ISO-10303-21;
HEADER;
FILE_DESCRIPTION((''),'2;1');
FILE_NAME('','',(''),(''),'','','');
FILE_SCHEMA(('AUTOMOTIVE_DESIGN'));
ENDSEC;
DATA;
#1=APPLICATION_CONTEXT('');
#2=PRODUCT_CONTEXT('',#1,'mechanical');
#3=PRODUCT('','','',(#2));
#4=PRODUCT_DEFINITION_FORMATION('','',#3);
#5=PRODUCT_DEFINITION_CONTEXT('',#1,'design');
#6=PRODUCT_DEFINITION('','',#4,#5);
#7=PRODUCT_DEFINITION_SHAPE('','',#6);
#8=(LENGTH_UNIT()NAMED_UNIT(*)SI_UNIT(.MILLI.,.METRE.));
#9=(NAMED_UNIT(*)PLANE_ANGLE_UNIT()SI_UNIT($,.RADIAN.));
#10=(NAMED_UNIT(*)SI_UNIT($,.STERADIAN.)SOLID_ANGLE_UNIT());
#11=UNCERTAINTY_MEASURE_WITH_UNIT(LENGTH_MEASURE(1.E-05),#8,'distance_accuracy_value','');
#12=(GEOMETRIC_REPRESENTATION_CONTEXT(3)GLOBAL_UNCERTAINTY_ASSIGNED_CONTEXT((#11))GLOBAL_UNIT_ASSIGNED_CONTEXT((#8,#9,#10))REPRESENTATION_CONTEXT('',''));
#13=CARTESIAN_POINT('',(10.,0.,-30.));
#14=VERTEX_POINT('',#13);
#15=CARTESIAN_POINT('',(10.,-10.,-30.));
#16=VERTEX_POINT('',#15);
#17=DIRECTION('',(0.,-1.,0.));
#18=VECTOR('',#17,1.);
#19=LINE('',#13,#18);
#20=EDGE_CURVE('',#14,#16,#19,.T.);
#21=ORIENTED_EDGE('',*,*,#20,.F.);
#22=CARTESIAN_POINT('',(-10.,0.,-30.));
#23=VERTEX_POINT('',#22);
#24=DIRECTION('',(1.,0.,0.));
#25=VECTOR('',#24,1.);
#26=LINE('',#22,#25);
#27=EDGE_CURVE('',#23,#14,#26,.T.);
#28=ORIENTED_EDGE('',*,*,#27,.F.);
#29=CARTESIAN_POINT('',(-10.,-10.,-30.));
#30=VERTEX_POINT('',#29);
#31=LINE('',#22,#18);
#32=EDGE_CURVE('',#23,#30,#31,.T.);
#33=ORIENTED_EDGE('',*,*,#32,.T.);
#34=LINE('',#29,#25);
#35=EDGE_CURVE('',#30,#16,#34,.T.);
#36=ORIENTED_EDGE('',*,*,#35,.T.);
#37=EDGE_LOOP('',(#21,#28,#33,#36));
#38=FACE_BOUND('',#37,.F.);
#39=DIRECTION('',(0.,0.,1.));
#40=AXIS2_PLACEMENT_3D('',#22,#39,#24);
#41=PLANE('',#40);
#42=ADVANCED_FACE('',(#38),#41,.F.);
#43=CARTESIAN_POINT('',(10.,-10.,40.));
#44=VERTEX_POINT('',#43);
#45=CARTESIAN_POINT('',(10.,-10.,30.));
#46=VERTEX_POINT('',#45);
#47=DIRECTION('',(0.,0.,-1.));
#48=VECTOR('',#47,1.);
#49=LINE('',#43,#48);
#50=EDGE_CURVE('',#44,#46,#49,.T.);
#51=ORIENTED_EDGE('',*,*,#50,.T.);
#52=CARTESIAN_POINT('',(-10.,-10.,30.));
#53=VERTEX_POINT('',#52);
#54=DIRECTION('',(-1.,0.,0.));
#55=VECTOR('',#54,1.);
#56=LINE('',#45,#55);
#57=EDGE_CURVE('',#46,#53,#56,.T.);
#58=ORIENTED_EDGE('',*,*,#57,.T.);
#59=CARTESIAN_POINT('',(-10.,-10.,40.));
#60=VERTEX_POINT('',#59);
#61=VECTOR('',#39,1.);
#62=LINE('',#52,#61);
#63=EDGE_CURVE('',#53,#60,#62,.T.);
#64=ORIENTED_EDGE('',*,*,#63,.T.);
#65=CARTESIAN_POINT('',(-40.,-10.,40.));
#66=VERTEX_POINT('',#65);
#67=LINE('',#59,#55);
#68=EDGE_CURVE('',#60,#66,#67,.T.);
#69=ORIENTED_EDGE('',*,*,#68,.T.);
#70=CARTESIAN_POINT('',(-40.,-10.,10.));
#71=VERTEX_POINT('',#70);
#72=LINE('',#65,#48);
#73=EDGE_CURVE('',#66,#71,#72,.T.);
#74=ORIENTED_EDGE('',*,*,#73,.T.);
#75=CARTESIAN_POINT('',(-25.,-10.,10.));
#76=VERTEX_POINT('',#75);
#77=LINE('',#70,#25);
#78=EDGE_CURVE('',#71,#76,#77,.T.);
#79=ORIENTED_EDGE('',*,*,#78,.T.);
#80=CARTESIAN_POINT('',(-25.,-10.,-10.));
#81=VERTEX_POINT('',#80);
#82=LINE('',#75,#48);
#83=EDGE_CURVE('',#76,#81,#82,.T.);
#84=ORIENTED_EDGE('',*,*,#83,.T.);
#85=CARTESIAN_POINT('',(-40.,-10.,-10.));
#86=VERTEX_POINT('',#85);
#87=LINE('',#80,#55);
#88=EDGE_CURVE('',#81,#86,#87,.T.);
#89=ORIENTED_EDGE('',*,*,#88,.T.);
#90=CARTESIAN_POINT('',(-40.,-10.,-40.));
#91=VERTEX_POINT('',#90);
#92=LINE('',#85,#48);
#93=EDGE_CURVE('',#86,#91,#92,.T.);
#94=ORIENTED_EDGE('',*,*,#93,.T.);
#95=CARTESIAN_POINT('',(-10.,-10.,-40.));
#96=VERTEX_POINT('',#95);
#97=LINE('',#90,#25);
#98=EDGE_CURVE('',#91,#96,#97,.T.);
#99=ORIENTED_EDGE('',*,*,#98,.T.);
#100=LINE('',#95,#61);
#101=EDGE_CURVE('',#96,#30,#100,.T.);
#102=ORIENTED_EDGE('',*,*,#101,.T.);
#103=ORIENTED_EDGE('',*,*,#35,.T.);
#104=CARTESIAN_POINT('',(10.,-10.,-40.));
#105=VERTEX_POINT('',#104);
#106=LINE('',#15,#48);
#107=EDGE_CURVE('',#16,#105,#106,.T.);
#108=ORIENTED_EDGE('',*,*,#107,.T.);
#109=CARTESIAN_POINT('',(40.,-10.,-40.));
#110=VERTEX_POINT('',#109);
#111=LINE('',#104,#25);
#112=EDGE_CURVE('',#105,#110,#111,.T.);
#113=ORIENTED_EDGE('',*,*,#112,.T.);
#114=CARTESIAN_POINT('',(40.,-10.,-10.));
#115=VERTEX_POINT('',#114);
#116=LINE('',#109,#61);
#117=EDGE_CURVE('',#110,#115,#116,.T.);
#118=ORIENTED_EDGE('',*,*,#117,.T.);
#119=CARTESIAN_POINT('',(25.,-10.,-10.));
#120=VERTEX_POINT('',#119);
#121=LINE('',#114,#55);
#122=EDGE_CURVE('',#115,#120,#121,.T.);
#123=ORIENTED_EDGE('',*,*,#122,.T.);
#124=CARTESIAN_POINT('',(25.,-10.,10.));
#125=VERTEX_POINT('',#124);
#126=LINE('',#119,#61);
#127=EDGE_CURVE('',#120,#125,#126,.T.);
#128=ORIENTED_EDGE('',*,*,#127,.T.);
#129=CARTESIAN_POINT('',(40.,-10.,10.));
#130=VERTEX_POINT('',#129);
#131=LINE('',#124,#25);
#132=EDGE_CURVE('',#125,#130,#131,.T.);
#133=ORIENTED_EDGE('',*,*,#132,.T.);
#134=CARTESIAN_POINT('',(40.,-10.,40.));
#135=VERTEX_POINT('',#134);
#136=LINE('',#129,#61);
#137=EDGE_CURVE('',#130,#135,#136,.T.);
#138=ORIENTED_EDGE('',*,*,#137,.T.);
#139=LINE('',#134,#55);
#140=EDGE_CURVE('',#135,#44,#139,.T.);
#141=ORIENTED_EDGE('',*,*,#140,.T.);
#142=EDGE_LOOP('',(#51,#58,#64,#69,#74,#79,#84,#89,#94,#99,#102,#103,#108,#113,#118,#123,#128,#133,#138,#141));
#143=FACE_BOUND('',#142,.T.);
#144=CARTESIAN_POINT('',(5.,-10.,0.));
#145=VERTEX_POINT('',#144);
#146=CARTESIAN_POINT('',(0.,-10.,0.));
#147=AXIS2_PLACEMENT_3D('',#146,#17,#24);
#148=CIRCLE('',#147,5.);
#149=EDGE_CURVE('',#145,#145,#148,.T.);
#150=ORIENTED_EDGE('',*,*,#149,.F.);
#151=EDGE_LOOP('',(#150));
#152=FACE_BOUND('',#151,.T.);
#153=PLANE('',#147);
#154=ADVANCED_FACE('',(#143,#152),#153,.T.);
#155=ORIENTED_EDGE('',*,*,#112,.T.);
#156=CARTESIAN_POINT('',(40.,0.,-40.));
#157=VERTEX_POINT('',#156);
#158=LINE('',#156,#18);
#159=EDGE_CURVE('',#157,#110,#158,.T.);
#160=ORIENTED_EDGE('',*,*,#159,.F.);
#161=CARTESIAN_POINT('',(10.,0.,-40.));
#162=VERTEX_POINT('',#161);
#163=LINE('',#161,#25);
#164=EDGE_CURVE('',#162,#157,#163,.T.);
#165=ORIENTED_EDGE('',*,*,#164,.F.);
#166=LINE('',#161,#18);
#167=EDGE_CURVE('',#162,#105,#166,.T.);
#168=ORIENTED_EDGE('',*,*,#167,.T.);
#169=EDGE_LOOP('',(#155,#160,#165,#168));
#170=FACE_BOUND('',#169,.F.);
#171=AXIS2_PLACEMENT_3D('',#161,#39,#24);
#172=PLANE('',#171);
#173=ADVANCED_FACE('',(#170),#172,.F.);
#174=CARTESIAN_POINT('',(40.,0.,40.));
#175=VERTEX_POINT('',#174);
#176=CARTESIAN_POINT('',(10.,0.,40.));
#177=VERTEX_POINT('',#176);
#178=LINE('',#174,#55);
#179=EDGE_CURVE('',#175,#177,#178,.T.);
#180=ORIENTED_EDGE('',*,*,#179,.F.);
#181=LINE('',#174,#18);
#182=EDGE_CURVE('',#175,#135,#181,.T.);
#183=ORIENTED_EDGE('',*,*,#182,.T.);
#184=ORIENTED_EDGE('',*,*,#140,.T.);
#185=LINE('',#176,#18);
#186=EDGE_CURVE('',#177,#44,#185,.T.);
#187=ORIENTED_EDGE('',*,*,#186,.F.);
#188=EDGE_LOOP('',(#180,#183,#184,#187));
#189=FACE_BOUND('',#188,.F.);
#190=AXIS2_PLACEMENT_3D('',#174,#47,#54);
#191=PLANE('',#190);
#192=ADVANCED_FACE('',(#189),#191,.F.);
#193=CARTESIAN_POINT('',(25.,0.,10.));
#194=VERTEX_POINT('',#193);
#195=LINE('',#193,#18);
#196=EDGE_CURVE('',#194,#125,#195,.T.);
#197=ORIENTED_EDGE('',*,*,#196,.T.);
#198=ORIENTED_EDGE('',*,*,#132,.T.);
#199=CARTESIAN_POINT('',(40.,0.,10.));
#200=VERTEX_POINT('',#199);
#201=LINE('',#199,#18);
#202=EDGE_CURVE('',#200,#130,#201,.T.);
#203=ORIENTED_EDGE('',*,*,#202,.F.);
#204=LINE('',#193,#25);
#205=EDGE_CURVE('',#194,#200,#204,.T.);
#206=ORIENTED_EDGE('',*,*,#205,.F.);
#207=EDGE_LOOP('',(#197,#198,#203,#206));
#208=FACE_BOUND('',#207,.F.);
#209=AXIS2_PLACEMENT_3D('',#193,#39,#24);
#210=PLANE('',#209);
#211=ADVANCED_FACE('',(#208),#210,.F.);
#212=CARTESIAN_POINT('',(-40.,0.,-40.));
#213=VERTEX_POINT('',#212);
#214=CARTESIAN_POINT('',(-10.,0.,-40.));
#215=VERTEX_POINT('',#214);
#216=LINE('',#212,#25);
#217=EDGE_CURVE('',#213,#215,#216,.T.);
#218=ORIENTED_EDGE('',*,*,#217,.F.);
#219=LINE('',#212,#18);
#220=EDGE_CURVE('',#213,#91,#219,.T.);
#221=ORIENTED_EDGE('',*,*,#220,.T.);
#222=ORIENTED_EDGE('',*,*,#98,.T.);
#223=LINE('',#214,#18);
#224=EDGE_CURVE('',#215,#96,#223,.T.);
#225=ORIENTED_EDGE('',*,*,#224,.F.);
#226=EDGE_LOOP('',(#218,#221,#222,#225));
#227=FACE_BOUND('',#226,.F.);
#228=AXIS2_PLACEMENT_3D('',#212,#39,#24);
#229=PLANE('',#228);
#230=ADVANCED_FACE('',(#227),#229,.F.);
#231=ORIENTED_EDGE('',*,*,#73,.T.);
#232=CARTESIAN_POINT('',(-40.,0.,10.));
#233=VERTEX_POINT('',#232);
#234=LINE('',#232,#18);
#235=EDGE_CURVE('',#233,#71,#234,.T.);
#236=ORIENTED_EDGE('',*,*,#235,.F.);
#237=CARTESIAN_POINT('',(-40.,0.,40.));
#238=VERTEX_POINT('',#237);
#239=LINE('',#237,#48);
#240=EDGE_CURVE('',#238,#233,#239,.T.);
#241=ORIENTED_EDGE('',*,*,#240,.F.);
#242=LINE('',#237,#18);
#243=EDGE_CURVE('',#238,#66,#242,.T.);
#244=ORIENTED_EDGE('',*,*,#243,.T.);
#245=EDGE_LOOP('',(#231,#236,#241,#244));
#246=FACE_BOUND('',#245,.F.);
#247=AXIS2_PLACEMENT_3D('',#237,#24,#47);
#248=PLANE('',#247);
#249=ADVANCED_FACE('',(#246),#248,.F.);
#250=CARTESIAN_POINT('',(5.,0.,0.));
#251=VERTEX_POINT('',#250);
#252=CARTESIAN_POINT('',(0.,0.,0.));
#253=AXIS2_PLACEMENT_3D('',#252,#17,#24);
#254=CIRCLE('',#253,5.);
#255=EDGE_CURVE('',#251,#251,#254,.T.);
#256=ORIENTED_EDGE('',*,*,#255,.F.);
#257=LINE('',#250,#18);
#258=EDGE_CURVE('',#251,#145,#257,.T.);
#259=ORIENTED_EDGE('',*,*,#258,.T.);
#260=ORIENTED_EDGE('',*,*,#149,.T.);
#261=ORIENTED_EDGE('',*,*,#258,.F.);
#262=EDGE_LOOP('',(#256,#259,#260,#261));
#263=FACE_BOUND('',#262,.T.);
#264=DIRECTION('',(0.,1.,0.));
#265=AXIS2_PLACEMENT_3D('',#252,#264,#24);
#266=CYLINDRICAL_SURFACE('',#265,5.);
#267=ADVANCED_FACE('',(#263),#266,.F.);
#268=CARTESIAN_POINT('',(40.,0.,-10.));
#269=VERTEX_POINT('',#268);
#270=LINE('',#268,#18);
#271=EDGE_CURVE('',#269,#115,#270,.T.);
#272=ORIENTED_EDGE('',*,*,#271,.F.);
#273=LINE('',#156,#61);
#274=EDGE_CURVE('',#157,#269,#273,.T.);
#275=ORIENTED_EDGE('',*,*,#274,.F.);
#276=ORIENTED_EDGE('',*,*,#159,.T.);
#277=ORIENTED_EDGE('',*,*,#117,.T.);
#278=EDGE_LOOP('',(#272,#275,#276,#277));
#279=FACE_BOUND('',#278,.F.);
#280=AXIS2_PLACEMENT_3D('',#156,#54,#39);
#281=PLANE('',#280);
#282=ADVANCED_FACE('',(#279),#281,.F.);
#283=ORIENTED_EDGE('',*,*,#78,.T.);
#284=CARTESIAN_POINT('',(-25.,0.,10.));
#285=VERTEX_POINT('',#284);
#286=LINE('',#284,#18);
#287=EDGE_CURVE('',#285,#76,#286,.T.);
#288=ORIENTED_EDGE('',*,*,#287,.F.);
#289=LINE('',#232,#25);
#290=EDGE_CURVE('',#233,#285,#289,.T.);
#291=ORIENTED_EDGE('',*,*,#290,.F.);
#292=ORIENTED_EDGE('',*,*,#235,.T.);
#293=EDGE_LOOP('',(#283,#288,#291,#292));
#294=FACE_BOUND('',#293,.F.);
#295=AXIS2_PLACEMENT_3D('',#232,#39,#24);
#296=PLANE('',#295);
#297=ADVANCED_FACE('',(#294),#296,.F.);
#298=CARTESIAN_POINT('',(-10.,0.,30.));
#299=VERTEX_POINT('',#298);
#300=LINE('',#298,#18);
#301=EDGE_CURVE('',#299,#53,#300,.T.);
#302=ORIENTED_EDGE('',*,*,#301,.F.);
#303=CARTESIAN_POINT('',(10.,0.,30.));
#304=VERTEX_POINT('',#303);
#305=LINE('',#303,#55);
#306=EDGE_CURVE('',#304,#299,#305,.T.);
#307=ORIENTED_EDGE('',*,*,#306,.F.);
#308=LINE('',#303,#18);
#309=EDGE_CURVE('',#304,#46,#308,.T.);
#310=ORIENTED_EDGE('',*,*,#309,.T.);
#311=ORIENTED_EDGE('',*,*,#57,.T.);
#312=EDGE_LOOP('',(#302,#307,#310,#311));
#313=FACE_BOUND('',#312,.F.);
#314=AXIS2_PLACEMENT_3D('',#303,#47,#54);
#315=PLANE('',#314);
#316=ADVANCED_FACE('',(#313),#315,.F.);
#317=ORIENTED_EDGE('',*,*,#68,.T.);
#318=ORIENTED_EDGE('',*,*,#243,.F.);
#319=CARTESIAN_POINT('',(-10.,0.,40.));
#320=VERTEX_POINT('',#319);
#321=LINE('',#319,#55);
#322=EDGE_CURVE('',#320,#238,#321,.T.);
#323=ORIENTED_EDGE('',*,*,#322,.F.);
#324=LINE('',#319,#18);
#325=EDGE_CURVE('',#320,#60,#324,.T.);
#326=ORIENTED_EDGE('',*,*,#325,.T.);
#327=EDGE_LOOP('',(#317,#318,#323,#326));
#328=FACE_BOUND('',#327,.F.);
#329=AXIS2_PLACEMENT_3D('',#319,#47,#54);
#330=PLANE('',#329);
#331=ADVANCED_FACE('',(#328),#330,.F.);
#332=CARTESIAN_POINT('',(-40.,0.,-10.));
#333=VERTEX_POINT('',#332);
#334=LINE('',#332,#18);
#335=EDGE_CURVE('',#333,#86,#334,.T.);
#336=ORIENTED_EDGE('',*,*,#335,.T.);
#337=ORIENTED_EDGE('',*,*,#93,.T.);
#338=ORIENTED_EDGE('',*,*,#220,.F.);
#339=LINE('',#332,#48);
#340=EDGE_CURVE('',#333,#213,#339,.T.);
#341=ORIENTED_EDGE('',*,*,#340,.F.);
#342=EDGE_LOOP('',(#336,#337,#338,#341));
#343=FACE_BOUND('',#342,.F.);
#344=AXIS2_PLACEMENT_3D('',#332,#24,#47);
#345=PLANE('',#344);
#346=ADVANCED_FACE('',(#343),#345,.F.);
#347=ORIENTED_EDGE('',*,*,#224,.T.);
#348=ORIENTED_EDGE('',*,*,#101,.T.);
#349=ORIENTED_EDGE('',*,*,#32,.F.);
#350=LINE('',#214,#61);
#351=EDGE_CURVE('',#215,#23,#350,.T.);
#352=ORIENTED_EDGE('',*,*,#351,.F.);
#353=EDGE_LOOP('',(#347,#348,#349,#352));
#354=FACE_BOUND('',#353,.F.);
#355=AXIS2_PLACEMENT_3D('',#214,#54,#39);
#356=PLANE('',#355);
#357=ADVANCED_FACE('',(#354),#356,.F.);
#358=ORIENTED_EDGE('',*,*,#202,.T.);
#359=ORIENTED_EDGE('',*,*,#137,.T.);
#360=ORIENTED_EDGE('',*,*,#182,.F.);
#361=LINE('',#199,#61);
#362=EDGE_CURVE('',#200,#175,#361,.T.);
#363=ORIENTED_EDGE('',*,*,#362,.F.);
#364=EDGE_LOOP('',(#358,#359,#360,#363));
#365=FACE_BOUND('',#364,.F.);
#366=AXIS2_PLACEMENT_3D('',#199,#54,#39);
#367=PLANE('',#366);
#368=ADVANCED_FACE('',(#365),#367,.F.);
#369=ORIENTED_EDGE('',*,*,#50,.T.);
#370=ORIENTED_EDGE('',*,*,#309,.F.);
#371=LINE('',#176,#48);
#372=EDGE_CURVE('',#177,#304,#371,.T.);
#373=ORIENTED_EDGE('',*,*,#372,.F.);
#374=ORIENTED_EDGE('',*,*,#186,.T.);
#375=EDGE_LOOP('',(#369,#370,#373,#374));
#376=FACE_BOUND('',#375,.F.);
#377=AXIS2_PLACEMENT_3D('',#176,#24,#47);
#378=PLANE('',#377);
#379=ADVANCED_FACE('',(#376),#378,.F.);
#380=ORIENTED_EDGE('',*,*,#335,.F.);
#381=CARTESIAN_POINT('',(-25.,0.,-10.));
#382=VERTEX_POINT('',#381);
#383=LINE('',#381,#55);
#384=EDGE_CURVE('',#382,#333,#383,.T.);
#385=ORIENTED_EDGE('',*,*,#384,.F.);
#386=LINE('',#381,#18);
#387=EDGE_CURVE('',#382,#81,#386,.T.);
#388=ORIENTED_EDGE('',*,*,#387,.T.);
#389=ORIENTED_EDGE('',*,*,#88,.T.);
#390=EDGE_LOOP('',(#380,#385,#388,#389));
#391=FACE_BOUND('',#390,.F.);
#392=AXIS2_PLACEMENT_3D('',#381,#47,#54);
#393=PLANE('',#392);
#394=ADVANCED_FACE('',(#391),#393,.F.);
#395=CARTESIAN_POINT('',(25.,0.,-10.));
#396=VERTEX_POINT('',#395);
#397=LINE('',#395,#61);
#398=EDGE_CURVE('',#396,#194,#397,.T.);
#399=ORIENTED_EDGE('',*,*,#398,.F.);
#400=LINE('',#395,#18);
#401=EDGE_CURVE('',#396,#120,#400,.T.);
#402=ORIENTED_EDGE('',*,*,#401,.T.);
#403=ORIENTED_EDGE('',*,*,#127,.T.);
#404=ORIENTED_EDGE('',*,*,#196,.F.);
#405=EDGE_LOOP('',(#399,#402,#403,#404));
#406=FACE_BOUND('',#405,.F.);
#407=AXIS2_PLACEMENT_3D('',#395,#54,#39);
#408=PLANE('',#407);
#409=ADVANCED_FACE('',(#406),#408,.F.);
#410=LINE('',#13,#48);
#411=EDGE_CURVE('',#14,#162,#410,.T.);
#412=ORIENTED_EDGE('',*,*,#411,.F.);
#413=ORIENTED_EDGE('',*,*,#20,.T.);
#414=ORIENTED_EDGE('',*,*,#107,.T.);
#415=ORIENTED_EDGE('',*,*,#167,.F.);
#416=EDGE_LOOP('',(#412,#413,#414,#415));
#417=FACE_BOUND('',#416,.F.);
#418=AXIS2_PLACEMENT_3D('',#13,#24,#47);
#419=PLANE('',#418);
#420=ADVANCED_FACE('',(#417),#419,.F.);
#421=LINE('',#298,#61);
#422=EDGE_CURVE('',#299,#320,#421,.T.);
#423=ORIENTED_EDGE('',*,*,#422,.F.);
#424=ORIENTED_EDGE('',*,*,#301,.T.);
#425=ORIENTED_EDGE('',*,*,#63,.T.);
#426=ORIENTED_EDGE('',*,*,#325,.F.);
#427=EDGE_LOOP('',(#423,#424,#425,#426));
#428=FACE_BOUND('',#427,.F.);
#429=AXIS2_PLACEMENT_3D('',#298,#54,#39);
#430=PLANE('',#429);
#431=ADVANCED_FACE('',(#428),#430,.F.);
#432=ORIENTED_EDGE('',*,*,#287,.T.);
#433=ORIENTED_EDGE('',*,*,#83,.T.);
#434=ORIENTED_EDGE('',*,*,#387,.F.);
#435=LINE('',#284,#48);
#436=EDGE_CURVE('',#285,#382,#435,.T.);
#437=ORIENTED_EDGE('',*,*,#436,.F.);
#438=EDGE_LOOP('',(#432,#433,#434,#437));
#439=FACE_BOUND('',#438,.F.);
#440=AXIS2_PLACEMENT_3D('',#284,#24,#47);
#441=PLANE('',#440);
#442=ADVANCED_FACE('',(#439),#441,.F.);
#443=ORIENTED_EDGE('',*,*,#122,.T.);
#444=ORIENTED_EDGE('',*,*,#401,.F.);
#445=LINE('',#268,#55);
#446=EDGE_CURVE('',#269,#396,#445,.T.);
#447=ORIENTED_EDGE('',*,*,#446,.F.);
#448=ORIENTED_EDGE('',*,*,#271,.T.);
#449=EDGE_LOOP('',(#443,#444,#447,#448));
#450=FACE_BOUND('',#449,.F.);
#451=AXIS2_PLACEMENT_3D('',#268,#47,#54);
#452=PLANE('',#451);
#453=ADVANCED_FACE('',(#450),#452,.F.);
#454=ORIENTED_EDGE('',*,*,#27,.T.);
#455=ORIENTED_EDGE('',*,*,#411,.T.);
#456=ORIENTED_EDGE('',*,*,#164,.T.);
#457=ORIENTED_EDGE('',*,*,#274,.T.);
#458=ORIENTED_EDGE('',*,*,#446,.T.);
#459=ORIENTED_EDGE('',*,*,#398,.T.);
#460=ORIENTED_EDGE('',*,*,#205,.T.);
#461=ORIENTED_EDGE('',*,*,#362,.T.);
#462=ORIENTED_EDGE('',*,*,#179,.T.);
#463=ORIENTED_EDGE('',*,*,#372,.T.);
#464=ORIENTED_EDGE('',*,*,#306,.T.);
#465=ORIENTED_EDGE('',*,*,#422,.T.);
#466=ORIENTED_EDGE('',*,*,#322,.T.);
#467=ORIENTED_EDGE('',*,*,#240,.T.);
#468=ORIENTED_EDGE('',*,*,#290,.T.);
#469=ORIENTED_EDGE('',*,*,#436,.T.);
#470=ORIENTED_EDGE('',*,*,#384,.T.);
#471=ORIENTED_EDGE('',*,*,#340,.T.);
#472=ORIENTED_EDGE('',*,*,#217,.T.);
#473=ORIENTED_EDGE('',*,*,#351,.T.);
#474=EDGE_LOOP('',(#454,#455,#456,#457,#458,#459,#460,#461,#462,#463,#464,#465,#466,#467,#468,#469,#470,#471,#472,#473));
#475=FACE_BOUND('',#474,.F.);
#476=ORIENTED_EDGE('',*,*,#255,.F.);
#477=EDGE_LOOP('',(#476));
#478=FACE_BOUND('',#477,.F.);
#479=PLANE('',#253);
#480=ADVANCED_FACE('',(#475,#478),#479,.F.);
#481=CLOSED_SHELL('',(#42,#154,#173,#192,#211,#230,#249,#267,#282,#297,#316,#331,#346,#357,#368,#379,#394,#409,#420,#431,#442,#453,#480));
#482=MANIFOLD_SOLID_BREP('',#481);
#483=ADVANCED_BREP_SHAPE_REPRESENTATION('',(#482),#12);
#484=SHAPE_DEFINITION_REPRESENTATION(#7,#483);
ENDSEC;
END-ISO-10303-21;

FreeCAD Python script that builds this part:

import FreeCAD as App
import Part
import Sketcher
from FreeCAD import Vector


def add_polygon(sketch, points):
    """Adds a closed chain of lines whose ends are joined by coincident constraints."""
    first, n = sketch.GeometryCount, len(points)
    for a, b in zip(points, points[1:] + points[:1]):
        sketch.addGeometry(Part.LineSegment(App.Vector(*a, 0), App.Vector(*b, 0)), False)
    for i in range(n):
        sketch.addConstraint(Sketcher.Constraint("Coincident", first + i, 2, first + (i + 1) % n, 1))

doc = App.newDocument("Part")
params = doc.addObject("Spreadsheet::Sheet", "Params")
for row, (alias, value) in enumerate([
    ("sketch1_diameter", "10 mm"),
    ("sketch1_width", "20 mm"),
    ("sketch1_width2", "30 mm"),
    ("sketch1_width3", "15 mm"),
    ("sketch1_height", "10 mm"),
    ("pad1_length", "10 mm"),
], start=1):
    params.set(f"A{row}", alias)
    params.set(f"B{row}", "=" + value)
    params.setAlias(f"B{row}", alias)

body = doc.addObject("PartDesign::Body", "Body")

sketch1 = body.newObject("Sketcher::SketchObject", "Sketch")
sketch1.AttachmentSupport = (doc.getObject("XZ_Plane"), [""])
sketch1.MapMode = "FlatFace"
add_polygon(sketch1, [(10, 30), (-10, 30), (-10, 40), (-40, 40), (-40, 10), (-25, 10), (-25, -10), (-40, -10), (-40, -40), (-10, -40), (-10, -30), (10, -30), (10, -40), (40, -40), (40, -10), (25, -10), (25, 10), (40, 10), (40, 40), (10, 40)])
sketch1.addGeometry(Part.Circle(Vector(0, 0, 0), Vector(0, 0, 1), 5), False)
sketch1.addConstraint([
    Sketcher.Constraint("Horizontal", 0),
    Sketcher.Constraint("Vertical", 1),
    Sketcher.Constraint("Horizontal", 2),
    Sketcher.Constraint("Vertical", 3),
    Sketcher.Constraint("Horizontal", 4),
    Sketcher.Constraint("Vertical", 5),
    Sketcher.Constraint("Horizontal", 6),
    Sketcher.Constraint("Vertical", 7),
    Sketcher.Constraint("Horizontal", 8),
    Sketcher.Constraint("Vertical", 9),
    Sketcher.Constraint("Horizontal", 10),
    Sketcher.Constraint("Vertical", 11),
    Sketcher.Constraint("Horizontal", 12),
    Sketcher.Constraint("Vertical", 13),
    Sketcher.Constraint("Horizontal", 14),
    Sketcher.Constraint("Vertical", 15),
    Sketcher.Constraint("Horizontal", 16),
    Sketcher.Constraint("Vertical", 17),
    Sketcher.Constraint("Horizontal", 18),
    Sketcher.Constraint("Vertical", 19),
    Sketcher.Constraint("Coincident", 20, 3, -1, 1),
    Sketcher.Constraint("Symmetric", 0, 2, 10, 2, -1, 1),
    Sketcher.Constraint("Symmetric", 2, 2, 12, 2, -1, 1),
    Sketcher.Constraint("Symmetric", 4, 2, 14, 2, -1, 1),
    Sketcher.Constraint("Symmetric", 6, 2, 16, 2, -1, 1),
    Sketcher.Constraint("Symmetric", 8, 2, 18, 2, -1, 1),
    Sketcher.Constraint("Symmetric", 8, 2, 11, 2, -2),
    Sketcher.Constraint("Symmetric", 6, 2, 13, 2, -2),
    Sketcher.Constraint("Equal", 18, 3),
    Sketcher.Constraint("Equal", 10, 5),
    Sketcher.Constraint("Diameter", 20, 10.0),
    Sketcher.Constraint("DistanceX", 0, 2, 0, 1, 20.0),
    Sketcher.Constraint("DistanceX", 2, 2, 2, 1, 30.0),
    Sketcher.Constraint("DistanceX", 4, 1, 4, 2, 15.0),
    Sketcher.Constraint("DistanceY", 1, 1, 1, 2, 10.0),
])
sketch1.setExpression("Constraints[50]", "Params.sketch1_diameter")
sketch1.setExpression("Constraints[51]", "Params.sketch1_width")
sketch1.setExpression("Constraints[52]", "Params.sketch1_width2")
sketch1.setExpression("Constraints[53]", "Params.sketch1_width3")
sketch1.setExpression("Constraints[54]", "Params.sketch1_height")
pad1 = body.newObject("PartDesign::Pad", "Pad")
pad1.Profile = sketch1
pad1.setExpression("Length", "Params.pad1_length")

doc.recompute()
